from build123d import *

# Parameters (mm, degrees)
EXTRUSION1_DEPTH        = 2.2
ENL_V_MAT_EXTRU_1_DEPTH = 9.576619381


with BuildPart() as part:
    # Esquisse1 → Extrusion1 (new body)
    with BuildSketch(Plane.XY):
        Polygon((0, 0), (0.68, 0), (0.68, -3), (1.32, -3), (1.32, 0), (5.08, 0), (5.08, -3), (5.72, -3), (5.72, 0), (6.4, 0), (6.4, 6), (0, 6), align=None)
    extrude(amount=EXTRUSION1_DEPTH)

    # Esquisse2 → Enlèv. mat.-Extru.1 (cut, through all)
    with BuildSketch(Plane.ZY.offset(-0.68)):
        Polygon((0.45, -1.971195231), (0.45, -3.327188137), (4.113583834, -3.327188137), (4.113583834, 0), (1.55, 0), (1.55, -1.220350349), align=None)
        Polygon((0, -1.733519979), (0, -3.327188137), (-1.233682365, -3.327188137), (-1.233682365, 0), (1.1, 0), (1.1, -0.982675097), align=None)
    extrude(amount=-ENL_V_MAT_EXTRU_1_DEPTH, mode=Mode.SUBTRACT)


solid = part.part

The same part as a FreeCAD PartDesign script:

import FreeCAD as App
import Part
import Sketcher
Q = App.Units.Quantity

doc = App.newDocument("Part")
body = doc.addObject("PartDesign::Body", "Body")

sketch1 = body.newObject("Sketcher::SketchObject", "Sketch")
sketch1.AttachmentSupport = (doc.getObject("XY_Plane"), [""])
sketch1.MapMode = "FlatFace"
sketch1.addGeometry(Part.LineSegment(App.Vector(0, 0, 0), App.Vector(0.68, 0, 0)), False)
sketch1.addGeometry(Part.LineSegment(App.Vector(0.68, 0, 0), App.Vector(0.68, -3, 0)), False)
sketch1.addGeometry(Part.LineSegment(App.Vector(0.68, -3, 0), App.Vector(1.32, -3, 0)), False)
sketch1.addGeometry(Part.LineSegment(App.Vector(1.32, -3, 0), App.Vector(1.32, 0, 0)), False)
sketch1.addGeometry(Part.LineSegment(App.Vector(1.32, 0, 0), App.Vector(5.08, 0, 0)), False)
sketch1.addGeometry(Part.LineSegment(App.Vector(5.08, 0, 0), App.Vector(5.08, -3, 0)), False)
sketch1.addGeometry(Part.LineSegment(App.Vector(5.08, -3, 0), App.Vector(5.72, -3, 0)), False)
sketch1.addGeometry(Part.LineSegment(App.Vector(5.72, -3, 0), App.Vector(5.72, 0, 0)), False)
sketch1.addGeometry(Part.LineSegment(App.Vector(5.72, 0, 0), App.Vector(6.4, 0, 0)), False)
sketch1.addGeometry(Part.LineSegment(App.Vector(6.4, 0, 0), App.Vector(6.4, 6, 0)), False)
sketch1.addGeometry(Part.LineSegment(App.Vector(6.4, 6, 0), App.Vector(0, 6, 0)), False)
sketch1.addGeometry(Part.LineSegment(App.Vector(0, 6, 0), App.Vector(0, 0, 0)), False)
sketch1.addConstraint(Sketcher.Constraint("Coincident", 0, 2, 1, 1))
sketch1.addConstraint(Sketcher.Constraint("Coincident", 1, 2, 2, 1))
sketch1.addConstraint(Sketcher.Constraint("Coincident", 2, 2, 3, 1))
sketch1.addConstraint(Sketcher.Constraint("Coincident", 3, 2, 4, 1))
sketch1.addConstraint(Sketcher.Constraint("Coincident", 4, 2, 5, 1))
sketch1.addConstraint(Sketcher.Constraint("Coincident", 5, 2, 6, 1))
sketch1.addConstraint(Sketcher.Constraint("Coincident", 6, 2, 7, 1))
sketch1.addConstraint(Sketcher.Constraint("Coincident", 7, 2, 8, 1))
sketch1.addConstraint(Sketcher.Constraint("Coincident", 8, 2, 9, 1))
sketch1.addConstraint(Sketcher.Constraint("Coincident", 9, 2, 10, 1))
sketch1.addConstraint(Sketcher.Constraint("Coincident", 10, 2, 11, 1))
sketch1.addConstraint(Sketcher.Constraint("Coincident", 11, 2, 0, 1))
sketch1.addConstraint(Sketcher.Constraint("Horizontal", 0))
sketch1.addConstraint(Sketcher.Constraint("Vertical", 1))
sketch1.addConstraint(Sketcher.Constraint("Horizontal", 2))
sketch1.addConstraint(Sketcher.Constraint("Vertical", 3))
sketch1.addConstraint(Sketcher.Constraint("Horizontal", 4))
sketch1.addConstraint(Sketcher.Constraint("Vertical", 5))
sketch1.addConstraint(Sketcher.Constraint("Horizontal", 6))
sketch1.addConstraint(Sketcher.Constraint("Vertical", 7))
sketch1.addConstraint(Sketcher.Constraint("Horizontal", 8))
sketch1.addConstraint(Sketcher.Constraint("Vertical", 9))
sketch1.addConstraint(Sketcher.Constraint("Horizontal", 10))
sketch1.addConstraint(Sketcher.Constraint("Vertical", 11))
sketch1.addConstraint(Sketcher.Constraint("Coincident", 11, 2, -1, 1))
sketch1.addConstraint(Sketcher.Constraint("PointOnObject", 3, 2, -1))
sketch1.addConstraint(Sketcher.Constraint("PointOnObject", 7, 2, -1))
sketch1.addConstraint(Sketcher.Constraint("Horizontal", 2, 2, 5, 2))
sketch1.addConstraint(Sketcher.Constraint("Equal", 2, 6))
sketch1.addConstraint(Sketcher.Constraint("Equal", 0, 8))
sketch1.addConstraint(Sketcher.Constraint("DistanceY", 1, 2, 1, 1, Q("3 mm")))
sketch1.addConstraint(Sketcher.Constraint("DistanceY", 9, 1, 9, 2, Q("6 mm")))
sketch1.addConstraint(Sketcher.Constraint("DistanceX", 10, 2, 10, 1, Q("6.4 mm")))
sketch1.addConstraint(Sketcher.Constraint("DistanceX", 0, 1, 0, 2, Q("0.68 mm")))
sketch1.addConstraint(Sketcher.Constraint("DistanceX", 2, 1, 2, 2, Q("0.64 mm")))
pad1 = body.newObject("PartDesign::Pad", "Pad")
pad1.Profile = sketch1
pad1.Length = 2.2

sketch2 = body.newObject("Sketcher::SketchObject", "Sketch001")
sketch2.AttachmentSupport = (doc.getObject("YZ_Plane"), [""])
sketch2.MapMode = "FlatFace"
sketch2.AttachmentOffset = App.Placement(App.Vector(0, 0, 0.68), App.Rotation())
sketch2.addGeometry(Part.LineSegment(App.Vector(-1.971195, 0.45, 0), App.Vector(-3.327188, 0.45, 0)), False)
sketch2.addGeometry(Part.LineSegment(App.Vector(-3.327188, 0.45, 0), App.Vector(-3.327188, 4.113584, 0)), False)
sketch2.addGeometry(Part.LineSegment(App.Vector(-3.327188, 4.113584, 0), App.Vector(0, 4.113584, 0)), False)
sketch2.addGeometry(Part.LineSegment(App.Vector(0, 4.113584, 0), App.Vector(0, 1.55, 0)), False)
sketch2.addGeometry(Part.LineSegment(App.Vector(0, 1.55, 0), App.Vector(-1.22035, 1.55, 0)), False)
sketch2.addGeometry(Part.LineSegment(App.Vector(-1.22035, 1.55, 0), App.Vector(-1.971195, 0.45, 0)), False)
sketch2.addGeometry(Part.LineSegment(App.Vector(-3.327188, 0, 0), App.Vector(-1.73352, 0, 0)), False)
sketch2.addGeometry(Part.LineSegment(App.Vector(-1.73352, 0, 0), App.Vector(-0.982675, 1.1, 0)), False)
sketch2.addGeometry(Part.LineSegment(App.Vector(-0.982675, 1.1, 0), App.Vector(0, 1.1, 0)), False)
sketch2.addGeometry(Part.LineSegment(App.Vector(0, 1.1, 0), App.Vector(0, -1.233682, 0)), False)
sketch2.addGeometry(Part.LineSegment(App.Vector(0, -1.233682, 0), App.Vector(-3.327188, -1.233682, 0)), False)
sketch2.addGeometry(Part.LineSegment(App.Vector(-3.327188, -1.233682, 0), App.Vector(-3.327188, 0, 0)), False)
sketch2.addConstraint(Sketcher.Constraint("Coincident", 0, 2, 1, 1))
sketch2.addConstraint(Sketcher.Constraint("Coincident", 1, 2, 2, 1))
sketch2.addConstraint(Sketcher.Constraint("Coincident", 2, 2, 3, 1))
sketch2.addConstraint(Sketcher.Constraint("Coincident", 3, 2, 4, 1))
sketch2.addConstraint(Sketcher.Constraint("Coincident", 4, 2, 5, 1))
sketch2.addConstraint(Sketcher.Constraint("Coincident", 5, 2, 0, 1))
sketch2.addConstraint(Sketcher.Constraint("Coincident", 6, 2, 7, 1))
sketch2.addConstraint(Sketcher.Constraint("Coincident", 7, 2, 8, 1))
sketch2.addConstraint(Sketcher.Constraint("Coincident", 8, 2, 9, 1))
sketch2.addConstraint(Sketcher.Constraint("Coincident", 9, 2, 10, 1))
sketch2.addConstraint(Sketcher.Constraint("Coincident", 10, 2, 11, 1))
sketch2.addConstraint(Sketcher.Constraint("Coincident", 11, 2, 6, 1))
sketch2.addConstraint(Sketcher.Constraint("Horizontal", 0))
sketch2.addConstraint(Sketcher.Constraint("Vertical", 1))
sketch2.addConstraint(Sketcher.Constraint("Horizontal", 2))
sketch2.addConstraint(Sketcher.Constraint("Vertical", 3))
sketch2.addConstraint(Sketcher.Constraint("Horizontal", 4))
sketch2.addConstraint(Sketcher.Constraint("Horizontal", 6))
sketch2.addConstraint(Sketcher.Constraint("Horizontal", 8))
sketch2.addConstraint(Sketcher.Constraint("Vertical", 9))
sketch2.addConstraint(Sketcher.Constraint("Horizontal", 10))
sketch2.addConstraint(Sketcher.Constraint("Vertical", 11))
sketch2.addConstraint(Sketcher.Constraint("PointOnObject", 2, 2, -2))
sketch2.addConstraint(Sketcher.Constraint("PointOnObject", 6, 2, -1))
sketch2.addConstraint(Sketcher.Constraint("PointOnObject", 8, 2, -2))
sketch2.addConstraint(Sketcher.Constraint("Parallel", 5, 7))
sketch2.addConstraint(Sketcher.Constraint("Vertical", 1, 2, 10, 2))
sketch2.addConstraint(Sketcher.Constraint("Equal", 5, 7))
sketch2.addConstraint(Sketcher.Constraint("DistanceY", -1, 1, 7, 2, Q("1.1 mm")))
sketch2.addConstraint(Sketcher.Constraint("DistanceY", -1, 1, 0, 2, Q("0.45 mm")))
sketch2.addConstraint(Sketcher.Constraint("DistanceX", 2, 1, 2, 2, Q("3.327188 mm")))
sketch2.addConstraint(Sketcher.Constraint("DistanceX", 4, 2, 4, 1, Q("1.22035 mm")))
sketch2.addConstraint(Sketcher.Constraint("DistanceX", 6, 1, 6, 2, Q("1.593668 mm")))
sketch2.addConstraint(Sketcher.Constraint("Distance", 5, Q("1.331829 mm")))
sketch2.addConstraint(Sketcher.Constraint("DistanceY", 1, 1, 1, 2, Q("3.663584 mm")))
sketch2.addConstraint(Sketcher.Constraint("DistanceY", 9, 2, 9, 1, Q("2.333682 mm")))
pocket1 = body.newObject("PartDesign::Pocket", "Pocket")
pocket1.Profile = sketch2
pocket1.Type = "ThroughAll"
pocket1.Reversed = True

doc.recompute()
